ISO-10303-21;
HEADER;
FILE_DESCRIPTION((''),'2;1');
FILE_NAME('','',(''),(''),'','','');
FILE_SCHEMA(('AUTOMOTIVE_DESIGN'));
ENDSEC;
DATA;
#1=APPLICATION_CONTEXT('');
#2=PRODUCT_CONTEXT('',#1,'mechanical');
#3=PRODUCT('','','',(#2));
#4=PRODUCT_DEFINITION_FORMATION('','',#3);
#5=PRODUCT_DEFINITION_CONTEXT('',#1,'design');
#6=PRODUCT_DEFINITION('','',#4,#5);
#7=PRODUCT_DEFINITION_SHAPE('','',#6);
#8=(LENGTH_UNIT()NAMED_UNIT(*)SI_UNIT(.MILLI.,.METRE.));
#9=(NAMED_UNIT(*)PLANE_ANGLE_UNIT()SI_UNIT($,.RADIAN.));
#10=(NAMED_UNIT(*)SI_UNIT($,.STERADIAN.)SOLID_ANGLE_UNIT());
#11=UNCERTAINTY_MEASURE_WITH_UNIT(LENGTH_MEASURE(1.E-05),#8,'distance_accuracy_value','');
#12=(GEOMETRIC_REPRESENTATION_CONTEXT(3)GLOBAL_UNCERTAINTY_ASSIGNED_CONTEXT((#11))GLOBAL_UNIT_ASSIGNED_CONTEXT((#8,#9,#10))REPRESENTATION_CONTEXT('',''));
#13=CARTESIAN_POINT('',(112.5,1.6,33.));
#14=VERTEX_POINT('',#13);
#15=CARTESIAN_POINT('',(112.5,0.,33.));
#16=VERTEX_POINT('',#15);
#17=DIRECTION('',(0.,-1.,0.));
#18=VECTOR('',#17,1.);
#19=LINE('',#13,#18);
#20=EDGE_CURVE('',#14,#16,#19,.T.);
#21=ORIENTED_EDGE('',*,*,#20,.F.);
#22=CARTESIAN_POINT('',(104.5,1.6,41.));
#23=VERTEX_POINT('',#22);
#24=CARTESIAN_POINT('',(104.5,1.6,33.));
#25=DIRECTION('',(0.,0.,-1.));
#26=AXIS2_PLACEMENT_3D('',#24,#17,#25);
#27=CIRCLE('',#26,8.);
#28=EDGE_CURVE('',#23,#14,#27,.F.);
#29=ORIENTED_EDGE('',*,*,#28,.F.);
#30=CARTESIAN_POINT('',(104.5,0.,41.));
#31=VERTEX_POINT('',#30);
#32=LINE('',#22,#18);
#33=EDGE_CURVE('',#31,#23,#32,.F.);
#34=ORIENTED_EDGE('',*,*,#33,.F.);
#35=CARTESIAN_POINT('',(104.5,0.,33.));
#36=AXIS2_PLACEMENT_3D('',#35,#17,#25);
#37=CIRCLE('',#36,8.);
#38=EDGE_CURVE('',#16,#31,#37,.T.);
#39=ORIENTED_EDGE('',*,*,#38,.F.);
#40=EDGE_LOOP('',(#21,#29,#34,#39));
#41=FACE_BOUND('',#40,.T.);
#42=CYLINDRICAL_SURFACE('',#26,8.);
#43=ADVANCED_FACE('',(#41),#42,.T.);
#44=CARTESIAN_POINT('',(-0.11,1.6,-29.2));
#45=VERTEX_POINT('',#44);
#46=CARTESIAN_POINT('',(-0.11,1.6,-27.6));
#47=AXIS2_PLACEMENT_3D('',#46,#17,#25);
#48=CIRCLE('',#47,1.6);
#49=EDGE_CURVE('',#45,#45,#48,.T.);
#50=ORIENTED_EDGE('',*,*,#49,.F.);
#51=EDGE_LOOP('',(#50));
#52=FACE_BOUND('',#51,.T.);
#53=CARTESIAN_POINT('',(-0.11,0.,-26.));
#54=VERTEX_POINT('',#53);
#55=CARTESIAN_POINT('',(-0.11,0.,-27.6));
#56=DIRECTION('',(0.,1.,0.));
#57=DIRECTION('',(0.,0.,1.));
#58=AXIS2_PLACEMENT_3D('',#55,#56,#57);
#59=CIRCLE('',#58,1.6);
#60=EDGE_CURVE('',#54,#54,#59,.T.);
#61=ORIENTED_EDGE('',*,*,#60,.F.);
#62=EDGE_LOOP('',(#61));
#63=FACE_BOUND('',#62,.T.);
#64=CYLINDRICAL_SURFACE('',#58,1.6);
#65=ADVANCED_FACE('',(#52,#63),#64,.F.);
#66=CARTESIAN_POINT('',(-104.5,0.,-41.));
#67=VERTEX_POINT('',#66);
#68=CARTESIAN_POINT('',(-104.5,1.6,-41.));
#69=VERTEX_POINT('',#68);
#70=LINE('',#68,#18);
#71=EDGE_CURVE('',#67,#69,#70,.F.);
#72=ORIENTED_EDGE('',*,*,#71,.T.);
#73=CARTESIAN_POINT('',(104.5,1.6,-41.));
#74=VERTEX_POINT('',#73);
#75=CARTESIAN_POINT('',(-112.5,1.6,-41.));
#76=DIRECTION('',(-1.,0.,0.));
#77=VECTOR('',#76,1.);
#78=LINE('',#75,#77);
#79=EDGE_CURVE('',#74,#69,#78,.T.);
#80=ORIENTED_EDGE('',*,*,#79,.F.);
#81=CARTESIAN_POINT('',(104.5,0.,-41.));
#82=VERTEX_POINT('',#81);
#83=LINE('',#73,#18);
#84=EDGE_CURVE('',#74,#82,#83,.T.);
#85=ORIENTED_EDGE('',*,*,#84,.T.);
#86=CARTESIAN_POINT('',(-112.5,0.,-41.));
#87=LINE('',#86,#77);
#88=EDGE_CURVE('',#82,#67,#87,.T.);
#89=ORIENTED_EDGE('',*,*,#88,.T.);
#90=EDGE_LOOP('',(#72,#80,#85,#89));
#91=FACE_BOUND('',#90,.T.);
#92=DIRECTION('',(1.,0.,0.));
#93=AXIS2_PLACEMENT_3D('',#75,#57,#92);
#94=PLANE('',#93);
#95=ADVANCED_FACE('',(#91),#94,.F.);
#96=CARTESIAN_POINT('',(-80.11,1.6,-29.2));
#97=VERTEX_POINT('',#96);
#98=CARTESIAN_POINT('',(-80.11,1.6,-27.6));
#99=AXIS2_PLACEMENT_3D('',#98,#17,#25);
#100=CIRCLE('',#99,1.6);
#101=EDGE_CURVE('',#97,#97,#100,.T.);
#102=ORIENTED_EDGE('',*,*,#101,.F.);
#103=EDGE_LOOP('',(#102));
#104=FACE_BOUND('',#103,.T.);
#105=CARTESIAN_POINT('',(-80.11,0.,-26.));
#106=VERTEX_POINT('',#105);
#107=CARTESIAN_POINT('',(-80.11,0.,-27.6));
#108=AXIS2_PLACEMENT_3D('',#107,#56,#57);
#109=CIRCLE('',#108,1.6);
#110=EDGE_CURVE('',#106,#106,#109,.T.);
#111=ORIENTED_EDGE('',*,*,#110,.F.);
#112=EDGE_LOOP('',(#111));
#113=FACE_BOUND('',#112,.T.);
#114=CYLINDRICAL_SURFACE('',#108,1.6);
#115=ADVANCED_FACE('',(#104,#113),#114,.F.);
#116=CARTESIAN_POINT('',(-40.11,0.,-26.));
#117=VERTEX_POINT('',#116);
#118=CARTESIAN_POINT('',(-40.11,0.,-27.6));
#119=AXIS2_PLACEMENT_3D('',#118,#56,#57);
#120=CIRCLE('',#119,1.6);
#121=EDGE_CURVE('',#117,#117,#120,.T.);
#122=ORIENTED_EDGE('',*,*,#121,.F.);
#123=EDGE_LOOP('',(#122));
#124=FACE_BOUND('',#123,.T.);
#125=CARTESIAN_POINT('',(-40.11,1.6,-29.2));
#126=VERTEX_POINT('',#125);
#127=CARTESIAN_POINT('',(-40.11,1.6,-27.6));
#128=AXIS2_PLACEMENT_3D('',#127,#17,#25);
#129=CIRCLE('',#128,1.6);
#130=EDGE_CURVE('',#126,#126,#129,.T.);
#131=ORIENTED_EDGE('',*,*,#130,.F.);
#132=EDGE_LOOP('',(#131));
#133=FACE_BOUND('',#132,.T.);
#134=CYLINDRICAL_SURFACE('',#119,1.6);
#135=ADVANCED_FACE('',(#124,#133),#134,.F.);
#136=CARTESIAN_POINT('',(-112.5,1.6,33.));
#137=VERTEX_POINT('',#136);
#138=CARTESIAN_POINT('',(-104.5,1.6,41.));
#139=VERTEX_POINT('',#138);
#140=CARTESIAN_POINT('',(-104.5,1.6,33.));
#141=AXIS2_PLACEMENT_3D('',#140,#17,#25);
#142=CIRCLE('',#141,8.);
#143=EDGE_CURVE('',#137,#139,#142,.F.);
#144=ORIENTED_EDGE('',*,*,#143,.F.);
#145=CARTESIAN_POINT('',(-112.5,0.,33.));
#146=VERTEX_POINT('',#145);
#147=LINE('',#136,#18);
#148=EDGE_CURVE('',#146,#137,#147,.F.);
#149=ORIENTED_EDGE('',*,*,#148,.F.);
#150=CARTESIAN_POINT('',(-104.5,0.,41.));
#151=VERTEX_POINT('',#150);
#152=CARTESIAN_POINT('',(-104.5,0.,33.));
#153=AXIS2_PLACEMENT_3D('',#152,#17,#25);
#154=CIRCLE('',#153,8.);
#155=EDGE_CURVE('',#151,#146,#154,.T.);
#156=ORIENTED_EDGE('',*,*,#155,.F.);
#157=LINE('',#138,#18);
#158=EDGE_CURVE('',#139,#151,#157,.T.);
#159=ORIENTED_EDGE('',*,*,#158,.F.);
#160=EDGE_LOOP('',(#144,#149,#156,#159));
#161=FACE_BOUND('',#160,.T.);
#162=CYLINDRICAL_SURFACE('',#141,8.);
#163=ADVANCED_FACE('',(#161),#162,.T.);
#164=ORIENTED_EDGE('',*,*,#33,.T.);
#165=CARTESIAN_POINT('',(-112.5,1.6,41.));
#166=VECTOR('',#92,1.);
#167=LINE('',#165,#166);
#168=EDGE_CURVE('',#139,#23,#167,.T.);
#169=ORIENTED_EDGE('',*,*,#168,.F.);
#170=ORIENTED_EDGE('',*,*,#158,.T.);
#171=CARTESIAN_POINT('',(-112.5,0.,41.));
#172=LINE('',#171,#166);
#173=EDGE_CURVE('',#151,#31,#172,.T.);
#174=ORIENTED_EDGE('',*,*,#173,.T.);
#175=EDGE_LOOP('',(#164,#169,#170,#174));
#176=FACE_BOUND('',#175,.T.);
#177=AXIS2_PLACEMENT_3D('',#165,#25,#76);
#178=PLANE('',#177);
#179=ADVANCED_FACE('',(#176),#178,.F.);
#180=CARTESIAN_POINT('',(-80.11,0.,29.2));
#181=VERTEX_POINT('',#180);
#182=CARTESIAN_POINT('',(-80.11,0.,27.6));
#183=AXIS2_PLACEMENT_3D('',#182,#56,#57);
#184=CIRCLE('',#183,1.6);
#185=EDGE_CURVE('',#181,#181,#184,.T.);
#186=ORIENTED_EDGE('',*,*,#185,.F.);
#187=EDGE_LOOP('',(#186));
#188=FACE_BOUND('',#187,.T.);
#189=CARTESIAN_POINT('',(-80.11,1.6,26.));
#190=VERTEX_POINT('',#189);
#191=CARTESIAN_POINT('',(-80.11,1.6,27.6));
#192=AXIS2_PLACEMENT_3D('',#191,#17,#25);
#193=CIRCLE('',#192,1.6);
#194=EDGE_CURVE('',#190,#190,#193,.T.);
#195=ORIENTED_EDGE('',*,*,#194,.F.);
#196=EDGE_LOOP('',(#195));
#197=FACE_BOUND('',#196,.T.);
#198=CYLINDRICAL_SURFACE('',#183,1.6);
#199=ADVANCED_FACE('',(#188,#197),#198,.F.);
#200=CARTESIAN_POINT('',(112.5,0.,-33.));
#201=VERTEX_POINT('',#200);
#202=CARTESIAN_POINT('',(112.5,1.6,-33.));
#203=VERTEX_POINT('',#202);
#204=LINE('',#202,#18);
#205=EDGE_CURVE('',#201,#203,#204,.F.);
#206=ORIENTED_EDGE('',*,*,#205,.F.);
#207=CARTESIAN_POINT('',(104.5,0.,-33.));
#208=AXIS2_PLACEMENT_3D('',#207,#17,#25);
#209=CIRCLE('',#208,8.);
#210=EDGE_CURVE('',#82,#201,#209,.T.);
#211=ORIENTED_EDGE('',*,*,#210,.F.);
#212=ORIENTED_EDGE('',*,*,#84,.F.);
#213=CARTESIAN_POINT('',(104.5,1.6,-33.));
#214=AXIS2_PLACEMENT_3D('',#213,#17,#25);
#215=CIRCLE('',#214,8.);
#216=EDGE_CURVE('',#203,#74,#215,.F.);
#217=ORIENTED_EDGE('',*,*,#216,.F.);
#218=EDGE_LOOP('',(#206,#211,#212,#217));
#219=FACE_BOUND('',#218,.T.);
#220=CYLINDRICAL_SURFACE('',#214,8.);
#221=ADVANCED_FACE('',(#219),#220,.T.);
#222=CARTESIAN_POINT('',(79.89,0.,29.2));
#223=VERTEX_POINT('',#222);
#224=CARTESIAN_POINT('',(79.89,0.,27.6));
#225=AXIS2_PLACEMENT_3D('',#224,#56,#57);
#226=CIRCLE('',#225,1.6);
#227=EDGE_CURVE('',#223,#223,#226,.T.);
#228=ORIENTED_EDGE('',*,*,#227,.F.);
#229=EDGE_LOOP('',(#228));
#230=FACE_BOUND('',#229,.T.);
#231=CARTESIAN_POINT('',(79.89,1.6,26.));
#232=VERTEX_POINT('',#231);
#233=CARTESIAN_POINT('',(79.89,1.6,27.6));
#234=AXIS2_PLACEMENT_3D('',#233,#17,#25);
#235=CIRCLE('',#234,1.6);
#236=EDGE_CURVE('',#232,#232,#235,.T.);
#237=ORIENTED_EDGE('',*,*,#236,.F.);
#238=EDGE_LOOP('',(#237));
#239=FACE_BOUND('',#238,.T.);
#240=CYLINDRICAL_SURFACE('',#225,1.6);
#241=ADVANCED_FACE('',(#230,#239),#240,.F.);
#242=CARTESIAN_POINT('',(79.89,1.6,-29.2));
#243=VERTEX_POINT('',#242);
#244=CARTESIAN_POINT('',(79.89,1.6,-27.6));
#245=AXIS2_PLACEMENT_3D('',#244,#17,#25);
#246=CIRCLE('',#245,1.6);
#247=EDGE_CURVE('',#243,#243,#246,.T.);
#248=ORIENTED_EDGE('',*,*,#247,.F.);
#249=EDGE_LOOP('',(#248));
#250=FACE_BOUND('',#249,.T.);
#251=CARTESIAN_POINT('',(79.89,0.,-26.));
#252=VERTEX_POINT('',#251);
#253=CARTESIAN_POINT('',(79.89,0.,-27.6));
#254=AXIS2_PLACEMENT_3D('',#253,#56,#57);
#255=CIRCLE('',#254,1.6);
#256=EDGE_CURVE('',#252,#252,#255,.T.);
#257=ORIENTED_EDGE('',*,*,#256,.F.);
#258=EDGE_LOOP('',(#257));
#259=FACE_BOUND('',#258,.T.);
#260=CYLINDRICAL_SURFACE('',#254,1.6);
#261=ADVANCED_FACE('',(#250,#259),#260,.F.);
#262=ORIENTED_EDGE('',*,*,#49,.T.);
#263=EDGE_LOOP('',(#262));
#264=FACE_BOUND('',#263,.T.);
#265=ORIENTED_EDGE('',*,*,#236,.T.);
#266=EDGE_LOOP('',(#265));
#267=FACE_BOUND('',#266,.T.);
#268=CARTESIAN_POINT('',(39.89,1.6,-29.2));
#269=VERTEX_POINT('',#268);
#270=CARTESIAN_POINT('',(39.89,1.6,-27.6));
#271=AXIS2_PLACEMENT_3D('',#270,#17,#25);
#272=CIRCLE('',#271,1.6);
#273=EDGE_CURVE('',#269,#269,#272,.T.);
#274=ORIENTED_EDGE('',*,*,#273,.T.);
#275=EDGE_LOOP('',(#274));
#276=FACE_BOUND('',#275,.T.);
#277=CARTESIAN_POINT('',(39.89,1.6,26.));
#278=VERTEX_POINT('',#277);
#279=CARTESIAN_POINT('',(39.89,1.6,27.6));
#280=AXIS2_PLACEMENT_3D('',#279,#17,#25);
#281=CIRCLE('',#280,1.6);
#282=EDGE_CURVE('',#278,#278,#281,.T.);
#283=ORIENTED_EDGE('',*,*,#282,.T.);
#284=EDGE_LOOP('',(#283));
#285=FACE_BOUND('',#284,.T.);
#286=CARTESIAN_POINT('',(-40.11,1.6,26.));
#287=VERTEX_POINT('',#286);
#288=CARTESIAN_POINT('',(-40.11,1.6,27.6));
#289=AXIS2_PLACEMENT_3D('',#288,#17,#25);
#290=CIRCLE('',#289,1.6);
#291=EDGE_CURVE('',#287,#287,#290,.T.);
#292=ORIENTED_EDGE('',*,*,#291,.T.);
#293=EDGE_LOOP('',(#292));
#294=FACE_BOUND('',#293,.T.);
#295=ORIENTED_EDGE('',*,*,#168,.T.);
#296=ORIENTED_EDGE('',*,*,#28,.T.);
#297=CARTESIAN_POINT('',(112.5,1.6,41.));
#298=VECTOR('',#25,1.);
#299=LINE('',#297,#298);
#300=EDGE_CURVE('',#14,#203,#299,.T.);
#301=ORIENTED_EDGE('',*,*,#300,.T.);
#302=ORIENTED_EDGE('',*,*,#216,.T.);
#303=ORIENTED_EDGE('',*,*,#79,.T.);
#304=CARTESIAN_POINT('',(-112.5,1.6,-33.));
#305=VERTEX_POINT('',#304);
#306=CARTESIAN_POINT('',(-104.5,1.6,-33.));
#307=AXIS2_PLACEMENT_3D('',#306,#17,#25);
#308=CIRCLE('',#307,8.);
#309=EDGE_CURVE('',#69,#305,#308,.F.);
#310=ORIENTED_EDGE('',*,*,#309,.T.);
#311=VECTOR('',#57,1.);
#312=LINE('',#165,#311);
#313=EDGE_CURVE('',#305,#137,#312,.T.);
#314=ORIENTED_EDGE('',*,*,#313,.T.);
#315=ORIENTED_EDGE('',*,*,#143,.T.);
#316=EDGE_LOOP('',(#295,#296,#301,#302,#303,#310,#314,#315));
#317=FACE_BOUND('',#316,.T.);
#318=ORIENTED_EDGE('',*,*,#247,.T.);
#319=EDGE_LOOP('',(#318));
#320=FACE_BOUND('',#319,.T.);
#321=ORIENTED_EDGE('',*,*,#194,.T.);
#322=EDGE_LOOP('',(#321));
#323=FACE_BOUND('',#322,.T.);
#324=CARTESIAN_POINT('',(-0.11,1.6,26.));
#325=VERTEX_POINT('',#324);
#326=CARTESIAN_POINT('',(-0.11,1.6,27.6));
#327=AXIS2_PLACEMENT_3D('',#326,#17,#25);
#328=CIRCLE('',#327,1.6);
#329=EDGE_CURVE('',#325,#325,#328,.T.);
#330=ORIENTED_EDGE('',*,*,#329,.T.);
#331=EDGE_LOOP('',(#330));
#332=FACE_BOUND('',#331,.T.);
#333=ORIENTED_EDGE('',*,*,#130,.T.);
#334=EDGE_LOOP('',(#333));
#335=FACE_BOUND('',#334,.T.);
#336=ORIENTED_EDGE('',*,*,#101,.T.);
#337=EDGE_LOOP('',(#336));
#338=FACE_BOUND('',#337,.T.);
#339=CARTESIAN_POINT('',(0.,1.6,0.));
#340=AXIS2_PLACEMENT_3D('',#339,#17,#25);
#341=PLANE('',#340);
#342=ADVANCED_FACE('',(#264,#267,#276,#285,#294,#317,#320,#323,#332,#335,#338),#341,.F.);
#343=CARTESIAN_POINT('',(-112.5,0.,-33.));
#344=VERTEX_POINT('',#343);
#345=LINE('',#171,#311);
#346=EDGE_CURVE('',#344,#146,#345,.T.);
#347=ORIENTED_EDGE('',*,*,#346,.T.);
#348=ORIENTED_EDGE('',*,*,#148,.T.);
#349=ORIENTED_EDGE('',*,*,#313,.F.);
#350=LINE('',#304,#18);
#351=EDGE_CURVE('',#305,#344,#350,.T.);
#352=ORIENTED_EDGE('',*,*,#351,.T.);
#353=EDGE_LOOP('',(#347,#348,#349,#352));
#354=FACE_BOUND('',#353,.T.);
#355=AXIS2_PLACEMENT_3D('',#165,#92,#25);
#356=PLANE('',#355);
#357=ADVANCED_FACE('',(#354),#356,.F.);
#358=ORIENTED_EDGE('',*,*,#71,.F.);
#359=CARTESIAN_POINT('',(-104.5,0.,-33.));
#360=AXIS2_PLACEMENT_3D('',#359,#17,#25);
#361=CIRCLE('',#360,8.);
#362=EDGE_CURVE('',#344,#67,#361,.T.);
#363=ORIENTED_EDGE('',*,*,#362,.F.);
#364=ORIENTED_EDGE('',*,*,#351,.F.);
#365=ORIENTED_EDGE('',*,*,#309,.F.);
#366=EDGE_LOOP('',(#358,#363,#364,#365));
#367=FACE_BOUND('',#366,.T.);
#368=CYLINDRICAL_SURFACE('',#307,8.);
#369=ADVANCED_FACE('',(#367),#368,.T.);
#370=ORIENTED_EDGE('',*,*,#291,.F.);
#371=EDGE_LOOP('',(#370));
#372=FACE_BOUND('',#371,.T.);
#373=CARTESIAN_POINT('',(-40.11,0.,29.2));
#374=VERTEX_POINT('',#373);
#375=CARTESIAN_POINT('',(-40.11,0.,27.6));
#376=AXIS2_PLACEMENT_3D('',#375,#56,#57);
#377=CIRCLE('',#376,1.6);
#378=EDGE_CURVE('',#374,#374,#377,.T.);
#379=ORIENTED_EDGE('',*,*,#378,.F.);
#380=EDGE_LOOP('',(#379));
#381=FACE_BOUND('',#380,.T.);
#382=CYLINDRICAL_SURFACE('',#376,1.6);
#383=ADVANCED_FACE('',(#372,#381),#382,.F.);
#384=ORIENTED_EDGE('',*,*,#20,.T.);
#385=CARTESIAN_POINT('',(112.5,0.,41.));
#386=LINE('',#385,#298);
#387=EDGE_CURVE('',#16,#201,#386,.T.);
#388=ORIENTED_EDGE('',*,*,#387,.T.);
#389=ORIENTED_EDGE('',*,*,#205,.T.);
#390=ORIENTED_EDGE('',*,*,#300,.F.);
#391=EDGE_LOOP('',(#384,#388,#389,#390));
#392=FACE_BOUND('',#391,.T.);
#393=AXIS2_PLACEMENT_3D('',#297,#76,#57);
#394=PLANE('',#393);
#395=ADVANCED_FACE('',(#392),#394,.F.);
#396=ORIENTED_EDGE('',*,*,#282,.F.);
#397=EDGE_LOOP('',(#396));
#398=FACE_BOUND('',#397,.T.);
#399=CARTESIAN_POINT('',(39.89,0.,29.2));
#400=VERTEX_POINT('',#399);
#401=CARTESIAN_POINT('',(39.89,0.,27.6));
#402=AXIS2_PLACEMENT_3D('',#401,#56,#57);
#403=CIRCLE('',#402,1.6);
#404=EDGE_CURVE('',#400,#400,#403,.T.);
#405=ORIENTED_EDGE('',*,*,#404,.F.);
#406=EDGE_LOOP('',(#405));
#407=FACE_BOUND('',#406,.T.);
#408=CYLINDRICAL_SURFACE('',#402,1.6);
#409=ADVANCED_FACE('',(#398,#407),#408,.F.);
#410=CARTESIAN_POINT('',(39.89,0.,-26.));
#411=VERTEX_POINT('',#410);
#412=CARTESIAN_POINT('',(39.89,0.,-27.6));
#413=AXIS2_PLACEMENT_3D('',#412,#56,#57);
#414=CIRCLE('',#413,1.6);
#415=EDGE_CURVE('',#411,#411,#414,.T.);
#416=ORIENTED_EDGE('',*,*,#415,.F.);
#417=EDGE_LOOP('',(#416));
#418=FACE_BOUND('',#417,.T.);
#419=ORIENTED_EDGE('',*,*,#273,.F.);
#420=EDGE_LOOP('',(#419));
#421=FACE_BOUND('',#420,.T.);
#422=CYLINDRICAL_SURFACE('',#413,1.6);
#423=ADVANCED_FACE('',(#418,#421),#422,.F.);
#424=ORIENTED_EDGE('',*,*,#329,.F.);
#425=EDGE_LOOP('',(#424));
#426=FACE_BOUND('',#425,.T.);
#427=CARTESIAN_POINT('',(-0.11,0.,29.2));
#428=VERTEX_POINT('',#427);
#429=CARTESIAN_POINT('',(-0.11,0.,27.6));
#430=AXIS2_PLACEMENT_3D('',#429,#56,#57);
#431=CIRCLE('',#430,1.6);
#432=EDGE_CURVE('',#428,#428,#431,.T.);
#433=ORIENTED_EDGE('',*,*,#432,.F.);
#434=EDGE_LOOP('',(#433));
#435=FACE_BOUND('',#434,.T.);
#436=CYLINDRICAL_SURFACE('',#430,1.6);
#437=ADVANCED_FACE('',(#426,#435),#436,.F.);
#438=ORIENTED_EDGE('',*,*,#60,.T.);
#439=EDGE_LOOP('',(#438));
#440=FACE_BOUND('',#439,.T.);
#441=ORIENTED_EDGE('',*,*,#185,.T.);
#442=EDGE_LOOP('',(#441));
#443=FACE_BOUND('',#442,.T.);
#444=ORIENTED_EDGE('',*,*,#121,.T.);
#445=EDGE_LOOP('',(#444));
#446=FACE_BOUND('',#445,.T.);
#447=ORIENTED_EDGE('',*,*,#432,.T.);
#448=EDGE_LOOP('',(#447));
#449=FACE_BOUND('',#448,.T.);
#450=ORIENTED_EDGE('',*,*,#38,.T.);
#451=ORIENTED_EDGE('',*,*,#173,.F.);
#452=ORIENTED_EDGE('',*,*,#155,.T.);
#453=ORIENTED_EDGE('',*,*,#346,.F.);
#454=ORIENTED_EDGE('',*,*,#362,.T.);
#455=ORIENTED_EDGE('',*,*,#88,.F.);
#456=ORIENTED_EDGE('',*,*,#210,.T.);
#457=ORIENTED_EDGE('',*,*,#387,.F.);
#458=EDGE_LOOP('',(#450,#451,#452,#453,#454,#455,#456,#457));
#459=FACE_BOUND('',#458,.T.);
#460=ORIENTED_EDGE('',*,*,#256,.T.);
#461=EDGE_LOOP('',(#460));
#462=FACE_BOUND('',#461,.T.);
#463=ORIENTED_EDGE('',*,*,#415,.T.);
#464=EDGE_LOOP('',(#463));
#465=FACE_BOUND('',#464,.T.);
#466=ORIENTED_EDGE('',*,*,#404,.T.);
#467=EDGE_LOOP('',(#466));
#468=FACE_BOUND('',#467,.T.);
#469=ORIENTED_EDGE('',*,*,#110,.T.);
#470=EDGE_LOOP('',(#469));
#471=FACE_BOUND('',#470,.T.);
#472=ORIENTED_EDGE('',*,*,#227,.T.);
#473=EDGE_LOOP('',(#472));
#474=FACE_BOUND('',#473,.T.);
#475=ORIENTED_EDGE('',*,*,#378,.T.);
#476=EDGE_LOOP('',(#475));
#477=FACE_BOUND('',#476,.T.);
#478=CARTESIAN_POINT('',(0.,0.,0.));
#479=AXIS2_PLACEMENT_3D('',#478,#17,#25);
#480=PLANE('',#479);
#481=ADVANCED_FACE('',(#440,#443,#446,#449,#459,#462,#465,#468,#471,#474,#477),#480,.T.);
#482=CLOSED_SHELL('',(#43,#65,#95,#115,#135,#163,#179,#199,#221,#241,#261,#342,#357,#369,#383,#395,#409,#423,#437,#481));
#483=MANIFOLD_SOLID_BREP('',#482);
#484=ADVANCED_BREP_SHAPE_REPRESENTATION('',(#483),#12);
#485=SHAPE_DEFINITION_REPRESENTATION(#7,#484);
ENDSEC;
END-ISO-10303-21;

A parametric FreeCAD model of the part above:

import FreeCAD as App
import Part
import Sketcher
Q = App.Units.Quantity


def edges_at(feature, points):
    """Names of the edges that pass closest to the given points."""
    edges = feature.Shape.Edges
    near = lambda p: min(range(len(edges)), key=lambda i: edges[i].distToShape(Part.Vertex(*p))[0])
    return sorted({f"Edge{near(p) + 1}" for p in points})


def add_polygon(sketch, points):
    """Adds a closed chain of lines whose ends are joined by coincident constraints."""
    first, n = sketch.GeometryCount, len(points)
    for a, b in zip(points, points[1:] + points[:1]):
        sketch.addGeometry(Part.LineSegment(App.Vector(*a, 0), App.Vector(*b, 0)), False)
    for i in range(n):
        sketch.addConstraint(Sketcher.Constraint("Coincident", first + i, 2, first + (i + 1) % n, 1))

doc = App.newDocument("Part")
body = doc.addObject("PartDesign::Body", "Body")

# Sketch on XZ plane
sketch1 = body.newObject("Sketcher::SketchObject", "Sketch")
sketch1.AttachmentSupport = (doc.getObject("XZ_Plane"), [""])
sketch1.MapMode = "FlatFace"
add_polygon(sketch1, [(-112.5, -41), (-112.5, 41), (112.5, 41), (112.5, -41)])  # lines 0-3
sketch1.addConstraint([
    Sketcher.Constraint("Vertical", 0),
    Sketcher.Constraint("Horizontal", 1),
    Sketcher.Constraint("Vertical", 2),
    Sketcher.Constraint("Horizontal", 3),
    Sketcher.Constraint("Symmetric", 0, 2, 2, 2, -1, 1),
    Sketcher.Constraint("DistanceX", 1, 1, 1, 2, Q("225 mm")),
    Sketcher.Constraint("DistanceY", 0, 1, 0, 2, Q("82 mm")),
])
pad1 = body.newObject("PartDesign::Pad", "Pad")
pad1.Profile = sketch1
pad1.Length = 1.6
pad1.Reversed = True
doc.recompute()

fillet = body.newObject("PartDesign::Fillet", "Fillet")
fillet.Base = (pad1, edges_at(pad1, [
    (112.5, 0.8, 41),
    (-112.5, 0.8, 41),
    (-112.5, 0.8, -41),
    (112.5, 0.8, -41),
]))
fillet.Radius = 8

# Sketch on XZ plane
sketch2 = body.newObject("Sketcher::SketchObject", "Sketch001")
sketch2.AttachmentSupport = (doc.getObject("XZ_Plane"), [""])
sketch2.MapMode = "FlatFace"
sketch2.AttachmentOffset = App.Placement(App.Vector(0, 0, -1.6), App.Rotation())
sketch2.addGeometry([
    Part.Circle(App.Vector(-80.11, -27.6, 0), App.Vector(0, 0, 1), 1.6),  # 0
    Part.Circle(App.Vector(-80.11, 27.6, 0), App.Vector(0, 0, 1), 1.6),  # 1
    Part.Circle(App.Vector(-40.11, -27.6, 0), App.Vector(0, 0, 1), 1.6),  # 2
    Part.Circle(App.Vector(-0.11, -27.6, 0), App.Vector(0, 0, 1), 1.6),  # 3
    Part.Circle(App.Vector(39.89, -27.6, 0), App.Vector(0, 0, 1), 1.6),  # 4
    Part.Circle(App.Vector(-40.11, 27.6, 0), App.Vector(0, 0, 1), 1.6),  # 5
    Part.Circle(App.Vector(-0.11, 27.6, 0), App.Vector(0, 0, 1), 1.6),  # 6
    Part.Circle(App.Vector(39.89, 27.6, 0), App.Vector(0, 0, 1), 1.6),  # 7
    Part.Circle(App.Vector(79.89, 27.6, 0), App.Vector(0, 0, 1), 1.6),  # 8
    Part.Circle(App.Vector(79.89, -27.6, 0), App.Vector(0, 0, 1), 1.6),  # 9
], False)
sketch2.addConstraint([
    Sketcher.Constraint("Equal", 0, 1),
    Sketcher.Constraint("Equal", 1, 2),
    Sketcher.Constraint("Equal", 2, 3),
    Sketcher.Constraint("Equal", 3, 4),
    Sketcher.Constraint("Equal", 4, 5),
    Sketcher.Constraint("Equal", 5, 6),
    Sketcher.Constraint("Equal", 6, 7),
    Sketcher.Constraint("Equal", 7, 8),
    Sketcher.Constraint("Equal", 8, 9),
    Sketcher.Constraint("Symmetric", 0, 3, 1, 3, -1),
    Sketcher.Constraint("Symmetric", 2, 3, 5, 3, -1),
    Sketcher.Constraint("Symmetric", 3, 3, 6, 3, -1),
    Sketcher.Constraint("Symmetric", 4, 3, 7, 3, -1),
    Sketcher.Constraint("Symmetric", 8, 3, 9, 3, -1),
    Sketcher.Constraint("Horizontal", 0, 3, 2, 3),
    Sketcher.Constraint("Horizontal", 2, 3, 3, 3),
    Sketcher.Constraint("Horizontal", 3, 3, 4, 3),
    Sketcher.Constraint("Horizontal", 7, 3, 8, 3),
    Sketcher.Constraint("Diameter", 0, Q("3.2 mm")),
    Sketcher.Constraint("DistanceX", 0, 3, 2, 3, Q("40 mm")),
    Sketcher.Constraint("DistanceX", 2, 3, 3, 3, Q("40 mm")),
    Sketcher.Constraint("DistanceX", 3, 3, 4, 3, Q("40 mm")),
    Sketcher.Constraint("DistanceX", 7, 3, 8, 3, Q("40 mm")),
    Sketcher.Constraint("DistanceY", 0, 3, -1, 1, Q("27.6 mm")),
    Sketcher.Constraint("DistanceX", 0, 3, -1, 1, Q("80.11 mm")),
])
pocket1 = body.newObject("PartDesign::Pocket", "Pocket")
pocket1.Profile = sketch2
pocket1.Type = "ThroughAll"
pocket1.Midplane = True

doc.recompute()
